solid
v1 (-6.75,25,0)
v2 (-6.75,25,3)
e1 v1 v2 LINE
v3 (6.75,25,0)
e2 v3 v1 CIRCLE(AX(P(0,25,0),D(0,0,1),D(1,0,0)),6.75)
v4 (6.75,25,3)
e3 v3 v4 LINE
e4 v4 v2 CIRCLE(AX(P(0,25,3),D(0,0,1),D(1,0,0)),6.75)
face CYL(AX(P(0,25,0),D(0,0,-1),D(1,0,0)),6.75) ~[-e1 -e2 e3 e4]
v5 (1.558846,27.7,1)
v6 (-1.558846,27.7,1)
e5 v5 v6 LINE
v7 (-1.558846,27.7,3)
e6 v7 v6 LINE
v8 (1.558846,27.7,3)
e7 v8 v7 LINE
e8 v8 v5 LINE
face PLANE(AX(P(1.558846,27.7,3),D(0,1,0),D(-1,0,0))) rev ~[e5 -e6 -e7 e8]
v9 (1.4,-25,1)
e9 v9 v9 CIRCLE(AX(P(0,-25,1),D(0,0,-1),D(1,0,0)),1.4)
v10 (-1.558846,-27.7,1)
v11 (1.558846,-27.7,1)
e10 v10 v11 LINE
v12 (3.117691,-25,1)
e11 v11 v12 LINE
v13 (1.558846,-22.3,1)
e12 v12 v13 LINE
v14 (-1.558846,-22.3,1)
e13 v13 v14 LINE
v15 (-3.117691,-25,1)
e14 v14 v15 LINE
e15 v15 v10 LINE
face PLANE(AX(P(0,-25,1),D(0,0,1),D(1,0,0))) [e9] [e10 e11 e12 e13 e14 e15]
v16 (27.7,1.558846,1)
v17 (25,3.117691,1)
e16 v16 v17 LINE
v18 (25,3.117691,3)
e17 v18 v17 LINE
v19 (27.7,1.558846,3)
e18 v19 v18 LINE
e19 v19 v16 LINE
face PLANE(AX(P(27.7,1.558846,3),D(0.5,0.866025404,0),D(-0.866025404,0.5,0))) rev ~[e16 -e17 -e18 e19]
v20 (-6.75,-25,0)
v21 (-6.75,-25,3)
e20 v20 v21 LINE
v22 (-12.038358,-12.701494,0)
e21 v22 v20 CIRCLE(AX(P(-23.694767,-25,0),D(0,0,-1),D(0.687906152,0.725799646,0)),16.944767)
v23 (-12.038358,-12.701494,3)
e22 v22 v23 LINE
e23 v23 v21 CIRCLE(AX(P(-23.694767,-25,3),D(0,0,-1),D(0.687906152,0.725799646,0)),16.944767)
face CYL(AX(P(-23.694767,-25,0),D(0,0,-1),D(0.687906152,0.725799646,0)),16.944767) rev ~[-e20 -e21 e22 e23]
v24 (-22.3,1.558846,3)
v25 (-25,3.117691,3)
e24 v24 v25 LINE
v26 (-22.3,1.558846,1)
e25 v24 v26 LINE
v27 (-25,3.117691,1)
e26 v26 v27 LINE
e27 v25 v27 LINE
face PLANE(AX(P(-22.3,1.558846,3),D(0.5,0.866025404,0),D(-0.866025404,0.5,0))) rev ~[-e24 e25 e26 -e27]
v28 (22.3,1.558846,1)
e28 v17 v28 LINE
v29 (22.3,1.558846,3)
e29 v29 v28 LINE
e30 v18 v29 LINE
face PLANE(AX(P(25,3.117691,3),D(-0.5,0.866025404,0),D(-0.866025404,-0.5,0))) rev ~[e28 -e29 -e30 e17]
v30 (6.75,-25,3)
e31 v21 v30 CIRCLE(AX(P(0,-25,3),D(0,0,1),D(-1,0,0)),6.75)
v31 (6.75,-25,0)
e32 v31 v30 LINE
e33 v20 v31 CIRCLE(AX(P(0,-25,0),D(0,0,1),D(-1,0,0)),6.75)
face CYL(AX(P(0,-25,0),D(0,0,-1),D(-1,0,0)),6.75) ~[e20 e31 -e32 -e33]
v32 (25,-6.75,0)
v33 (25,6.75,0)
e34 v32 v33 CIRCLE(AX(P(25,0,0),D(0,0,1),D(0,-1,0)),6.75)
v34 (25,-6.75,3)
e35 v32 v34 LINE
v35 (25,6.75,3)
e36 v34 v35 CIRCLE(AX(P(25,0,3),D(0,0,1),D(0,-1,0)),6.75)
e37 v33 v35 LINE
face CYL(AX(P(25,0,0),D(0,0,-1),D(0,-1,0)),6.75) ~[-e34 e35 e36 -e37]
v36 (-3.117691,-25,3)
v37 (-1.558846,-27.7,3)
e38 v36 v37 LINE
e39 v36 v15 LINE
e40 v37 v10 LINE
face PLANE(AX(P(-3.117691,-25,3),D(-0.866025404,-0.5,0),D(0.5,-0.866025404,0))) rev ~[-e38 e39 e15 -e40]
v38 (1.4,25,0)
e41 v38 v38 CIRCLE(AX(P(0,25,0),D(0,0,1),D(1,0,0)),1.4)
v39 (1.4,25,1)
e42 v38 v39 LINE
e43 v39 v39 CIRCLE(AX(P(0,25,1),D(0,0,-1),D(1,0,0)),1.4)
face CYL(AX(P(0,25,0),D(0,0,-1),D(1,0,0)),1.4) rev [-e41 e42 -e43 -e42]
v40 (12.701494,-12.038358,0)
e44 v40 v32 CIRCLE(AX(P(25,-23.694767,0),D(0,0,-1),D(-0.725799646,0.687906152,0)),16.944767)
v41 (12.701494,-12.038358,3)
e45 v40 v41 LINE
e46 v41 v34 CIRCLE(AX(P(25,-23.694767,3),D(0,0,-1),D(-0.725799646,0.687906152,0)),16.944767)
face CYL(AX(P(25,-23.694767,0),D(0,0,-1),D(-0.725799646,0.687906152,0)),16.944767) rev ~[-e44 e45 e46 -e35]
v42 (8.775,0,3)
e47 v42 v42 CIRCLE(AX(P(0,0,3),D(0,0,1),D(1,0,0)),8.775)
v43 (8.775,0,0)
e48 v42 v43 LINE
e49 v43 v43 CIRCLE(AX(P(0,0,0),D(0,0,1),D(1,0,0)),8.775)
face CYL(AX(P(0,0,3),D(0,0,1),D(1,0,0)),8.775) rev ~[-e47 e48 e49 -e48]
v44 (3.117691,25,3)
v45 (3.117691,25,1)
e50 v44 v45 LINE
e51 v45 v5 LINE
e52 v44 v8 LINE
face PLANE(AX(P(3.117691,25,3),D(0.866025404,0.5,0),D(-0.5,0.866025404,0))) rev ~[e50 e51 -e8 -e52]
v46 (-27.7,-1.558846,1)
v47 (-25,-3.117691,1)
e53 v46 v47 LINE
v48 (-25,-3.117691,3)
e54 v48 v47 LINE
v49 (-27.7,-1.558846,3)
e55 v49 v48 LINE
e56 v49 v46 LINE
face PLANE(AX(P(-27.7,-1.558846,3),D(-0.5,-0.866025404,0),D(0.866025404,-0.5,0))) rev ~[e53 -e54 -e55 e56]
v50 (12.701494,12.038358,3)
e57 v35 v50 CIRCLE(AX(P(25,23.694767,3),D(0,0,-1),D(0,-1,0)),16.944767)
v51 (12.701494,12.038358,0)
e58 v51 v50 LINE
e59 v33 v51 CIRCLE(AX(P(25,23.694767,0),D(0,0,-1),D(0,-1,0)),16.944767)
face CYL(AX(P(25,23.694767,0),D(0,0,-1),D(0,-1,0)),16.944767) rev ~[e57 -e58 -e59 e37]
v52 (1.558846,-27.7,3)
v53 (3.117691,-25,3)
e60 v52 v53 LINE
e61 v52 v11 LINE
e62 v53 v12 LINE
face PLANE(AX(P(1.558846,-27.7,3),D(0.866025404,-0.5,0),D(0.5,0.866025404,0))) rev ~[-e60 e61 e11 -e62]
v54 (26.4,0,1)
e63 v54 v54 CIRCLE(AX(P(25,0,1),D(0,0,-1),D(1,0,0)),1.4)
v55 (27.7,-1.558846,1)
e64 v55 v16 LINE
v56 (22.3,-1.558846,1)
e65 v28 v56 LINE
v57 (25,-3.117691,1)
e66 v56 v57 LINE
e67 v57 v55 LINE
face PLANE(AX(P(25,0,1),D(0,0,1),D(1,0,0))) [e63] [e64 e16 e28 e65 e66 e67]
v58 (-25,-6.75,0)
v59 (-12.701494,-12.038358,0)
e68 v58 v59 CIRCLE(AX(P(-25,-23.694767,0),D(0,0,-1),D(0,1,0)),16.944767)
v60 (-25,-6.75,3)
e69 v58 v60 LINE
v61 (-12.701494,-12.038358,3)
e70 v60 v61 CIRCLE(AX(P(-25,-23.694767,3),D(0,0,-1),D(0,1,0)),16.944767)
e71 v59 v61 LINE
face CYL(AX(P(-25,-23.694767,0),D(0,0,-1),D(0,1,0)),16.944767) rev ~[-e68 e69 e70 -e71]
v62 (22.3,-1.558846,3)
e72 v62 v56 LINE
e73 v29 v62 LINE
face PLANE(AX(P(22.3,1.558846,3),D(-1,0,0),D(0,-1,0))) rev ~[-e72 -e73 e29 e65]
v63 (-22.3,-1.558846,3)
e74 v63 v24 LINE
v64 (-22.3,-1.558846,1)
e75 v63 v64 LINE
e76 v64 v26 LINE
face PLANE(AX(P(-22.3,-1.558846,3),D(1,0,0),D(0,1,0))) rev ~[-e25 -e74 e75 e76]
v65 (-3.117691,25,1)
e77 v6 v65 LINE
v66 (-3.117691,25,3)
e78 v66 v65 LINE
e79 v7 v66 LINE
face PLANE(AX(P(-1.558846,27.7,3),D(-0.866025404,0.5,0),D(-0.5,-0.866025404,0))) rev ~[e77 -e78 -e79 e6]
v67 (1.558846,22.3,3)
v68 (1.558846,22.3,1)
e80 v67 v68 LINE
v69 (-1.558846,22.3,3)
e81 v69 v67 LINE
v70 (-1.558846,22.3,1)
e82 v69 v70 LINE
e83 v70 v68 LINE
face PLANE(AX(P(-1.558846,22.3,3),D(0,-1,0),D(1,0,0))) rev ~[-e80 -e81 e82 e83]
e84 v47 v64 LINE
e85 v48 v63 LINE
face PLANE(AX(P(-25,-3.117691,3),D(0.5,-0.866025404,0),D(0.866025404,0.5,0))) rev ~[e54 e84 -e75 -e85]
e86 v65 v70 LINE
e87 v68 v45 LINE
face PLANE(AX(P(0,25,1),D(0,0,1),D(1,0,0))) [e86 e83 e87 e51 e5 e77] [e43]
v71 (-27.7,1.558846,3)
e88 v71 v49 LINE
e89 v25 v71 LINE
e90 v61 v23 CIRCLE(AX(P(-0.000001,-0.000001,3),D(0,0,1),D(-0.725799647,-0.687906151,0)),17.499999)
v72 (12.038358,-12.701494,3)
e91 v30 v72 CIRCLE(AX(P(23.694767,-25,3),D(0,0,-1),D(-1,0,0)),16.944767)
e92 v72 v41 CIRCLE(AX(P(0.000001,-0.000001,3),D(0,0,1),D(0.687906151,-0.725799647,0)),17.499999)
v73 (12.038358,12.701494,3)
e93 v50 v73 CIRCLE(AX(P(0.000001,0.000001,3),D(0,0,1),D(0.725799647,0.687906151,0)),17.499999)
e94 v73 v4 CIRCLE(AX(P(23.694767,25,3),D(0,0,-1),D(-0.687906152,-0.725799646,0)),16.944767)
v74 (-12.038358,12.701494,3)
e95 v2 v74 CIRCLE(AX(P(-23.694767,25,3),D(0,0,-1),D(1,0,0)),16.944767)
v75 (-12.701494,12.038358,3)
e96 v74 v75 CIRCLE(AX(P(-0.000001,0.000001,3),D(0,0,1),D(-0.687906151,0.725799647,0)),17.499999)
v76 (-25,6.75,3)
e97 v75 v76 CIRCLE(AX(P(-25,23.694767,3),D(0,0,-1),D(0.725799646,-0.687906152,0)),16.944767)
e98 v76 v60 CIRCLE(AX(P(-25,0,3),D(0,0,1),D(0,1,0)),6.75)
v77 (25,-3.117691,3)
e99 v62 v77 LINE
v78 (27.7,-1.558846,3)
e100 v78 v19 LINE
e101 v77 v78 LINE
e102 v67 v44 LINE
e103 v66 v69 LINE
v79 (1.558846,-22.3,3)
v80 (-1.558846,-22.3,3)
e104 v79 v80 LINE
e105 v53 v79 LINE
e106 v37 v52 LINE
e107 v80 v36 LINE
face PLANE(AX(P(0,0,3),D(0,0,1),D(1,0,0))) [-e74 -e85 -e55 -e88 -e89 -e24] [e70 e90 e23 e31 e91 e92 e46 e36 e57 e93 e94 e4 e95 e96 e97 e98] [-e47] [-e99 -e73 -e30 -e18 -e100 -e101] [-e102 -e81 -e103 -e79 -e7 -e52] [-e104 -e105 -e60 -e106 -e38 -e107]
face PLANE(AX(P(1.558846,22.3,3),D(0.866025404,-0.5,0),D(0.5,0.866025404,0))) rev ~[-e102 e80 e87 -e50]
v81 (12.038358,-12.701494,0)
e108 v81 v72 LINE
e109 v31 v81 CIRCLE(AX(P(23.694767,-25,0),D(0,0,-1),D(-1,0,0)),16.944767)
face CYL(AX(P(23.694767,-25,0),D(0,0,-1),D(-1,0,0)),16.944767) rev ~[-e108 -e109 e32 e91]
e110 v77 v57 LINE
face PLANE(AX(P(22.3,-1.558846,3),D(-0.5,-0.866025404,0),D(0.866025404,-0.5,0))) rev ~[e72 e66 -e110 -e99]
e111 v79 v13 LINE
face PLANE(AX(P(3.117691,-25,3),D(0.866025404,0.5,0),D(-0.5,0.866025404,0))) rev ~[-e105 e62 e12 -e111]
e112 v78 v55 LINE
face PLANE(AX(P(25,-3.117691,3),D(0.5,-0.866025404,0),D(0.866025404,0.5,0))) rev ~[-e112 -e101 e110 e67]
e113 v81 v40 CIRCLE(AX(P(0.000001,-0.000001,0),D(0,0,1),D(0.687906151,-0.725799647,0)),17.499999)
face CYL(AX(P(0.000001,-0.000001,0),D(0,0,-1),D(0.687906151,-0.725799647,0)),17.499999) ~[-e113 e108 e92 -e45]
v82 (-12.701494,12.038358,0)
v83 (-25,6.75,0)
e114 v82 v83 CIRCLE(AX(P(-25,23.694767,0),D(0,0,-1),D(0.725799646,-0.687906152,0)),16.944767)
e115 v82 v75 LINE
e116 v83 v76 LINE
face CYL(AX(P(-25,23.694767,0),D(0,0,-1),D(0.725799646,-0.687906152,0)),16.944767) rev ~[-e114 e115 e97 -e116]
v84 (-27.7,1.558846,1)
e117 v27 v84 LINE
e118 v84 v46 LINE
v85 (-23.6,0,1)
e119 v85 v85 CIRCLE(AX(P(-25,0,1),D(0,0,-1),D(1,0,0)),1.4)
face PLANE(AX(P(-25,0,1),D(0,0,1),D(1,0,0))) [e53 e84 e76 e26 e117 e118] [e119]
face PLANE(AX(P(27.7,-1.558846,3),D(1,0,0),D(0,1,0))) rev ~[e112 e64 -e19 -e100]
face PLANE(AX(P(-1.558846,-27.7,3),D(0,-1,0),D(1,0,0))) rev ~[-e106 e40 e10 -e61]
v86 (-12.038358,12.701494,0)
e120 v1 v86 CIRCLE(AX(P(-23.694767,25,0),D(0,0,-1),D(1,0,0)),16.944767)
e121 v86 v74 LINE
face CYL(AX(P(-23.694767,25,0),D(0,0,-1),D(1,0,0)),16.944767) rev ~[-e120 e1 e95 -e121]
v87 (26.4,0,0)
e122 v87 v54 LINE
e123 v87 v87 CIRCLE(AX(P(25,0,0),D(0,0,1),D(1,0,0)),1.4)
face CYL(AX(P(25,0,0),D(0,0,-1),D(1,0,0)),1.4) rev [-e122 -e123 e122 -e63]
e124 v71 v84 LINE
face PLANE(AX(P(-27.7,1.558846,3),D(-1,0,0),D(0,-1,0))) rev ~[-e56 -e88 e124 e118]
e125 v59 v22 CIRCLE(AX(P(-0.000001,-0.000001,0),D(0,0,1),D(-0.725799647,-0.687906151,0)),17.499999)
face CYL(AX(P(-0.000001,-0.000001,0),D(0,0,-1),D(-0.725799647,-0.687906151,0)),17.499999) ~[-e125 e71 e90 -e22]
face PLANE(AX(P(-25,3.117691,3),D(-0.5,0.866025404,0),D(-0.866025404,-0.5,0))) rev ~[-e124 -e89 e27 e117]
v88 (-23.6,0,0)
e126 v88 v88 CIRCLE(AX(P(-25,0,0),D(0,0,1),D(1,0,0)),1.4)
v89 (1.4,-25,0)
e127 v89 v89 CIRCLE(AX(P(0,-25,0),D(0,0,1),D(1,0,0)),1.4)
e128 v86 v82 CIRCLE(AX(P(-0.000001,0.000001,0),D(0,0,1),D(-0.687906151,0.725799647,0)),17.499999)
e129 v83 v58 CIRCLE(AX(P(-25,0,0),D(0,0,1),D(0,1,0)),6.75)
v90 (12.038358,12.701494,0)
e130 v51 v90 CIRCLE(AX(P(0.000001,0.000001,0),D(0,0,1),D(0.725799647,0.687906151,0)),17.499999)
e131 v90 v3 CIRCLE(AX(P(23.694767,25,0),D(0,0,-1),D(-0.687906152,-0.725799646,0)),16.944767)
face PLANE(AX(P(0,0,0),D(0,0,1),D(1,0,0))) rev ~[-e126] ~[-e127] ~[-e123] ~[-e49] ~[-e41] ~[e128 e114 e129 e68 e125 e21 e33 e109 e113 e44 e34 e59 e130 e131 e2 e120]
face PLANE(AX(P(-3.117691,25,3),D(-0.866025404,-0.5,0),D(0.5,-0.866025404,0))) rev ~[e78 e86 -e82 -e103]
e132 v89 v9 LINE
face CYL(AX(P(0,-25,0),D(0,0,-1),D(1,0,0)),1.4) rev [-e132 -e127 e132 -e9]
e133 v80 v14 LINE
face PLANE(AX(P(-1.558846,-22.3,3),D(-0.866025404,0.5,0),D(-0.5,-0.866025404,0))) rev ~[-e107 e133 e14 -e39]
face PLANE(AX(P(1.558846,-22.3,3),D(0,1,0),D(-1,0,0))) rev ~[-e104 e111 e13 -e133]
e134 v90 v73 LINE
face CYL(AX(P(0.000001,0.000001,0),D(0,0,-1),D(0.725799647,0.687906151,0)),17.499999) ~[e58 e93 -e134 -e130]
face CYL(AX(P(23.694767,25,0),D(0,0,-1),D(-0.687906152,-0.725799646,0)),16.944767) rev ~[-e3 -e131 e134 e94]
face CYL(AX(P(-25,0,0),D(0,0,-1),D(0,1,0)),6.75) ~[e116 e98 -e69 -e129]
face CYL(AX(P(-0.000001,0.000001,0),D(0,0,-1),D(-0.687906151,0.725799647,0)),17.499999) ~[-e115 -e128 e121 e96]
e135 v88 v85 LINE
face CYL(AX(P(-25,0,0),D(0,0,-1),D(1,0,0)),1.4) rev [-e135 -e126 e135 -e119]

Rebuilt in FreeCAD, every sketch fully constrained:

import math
import FreeCAD as App
import Part
import Sketcher
Q = App.Units.Quantity


def add_polygon(sketch, points):
    """Adds a closed chain of lines whose ends are joined by coincident constraints."""
    first, n = sketch.GeometryCount, len(points)
    for a, b in zip(points, points[1:] + points[:1]):
        sketch.addGeometry(Part.LineSegment(App.Vector(*a, 0), App.Vector(*b, 0)), False)
    for i in range(n):
        sketch.addConstraint(Sketcher.Constraint("Coincident", first + i, 2, first + (i + 1) % n, 1))

doc = App.newDocument("Part")
params = doc.addObject("Spreadsheet::Sheet", "Params")
for row, (alias, value) in enumerate([
    ("sketch1_diameter", "2.8 mm"),
    ("sketch1_radius", "17.499999 mm"),
    ("sketch1_radius2", "6.75 mm"),
    ("pad1_length", "3 mm"),
    ("pocket1_length", "2 mm"),
    ("sketch3_diameter", "17.55 mm"),
], start=1):
    params.set(f"A{row}", alias)
    params.set(f"B{row}", "=" + value)
    params.setAlias(f"B{row}", alias)

body = doc.addObject("PartDesign::Body", "Body")

sketch1 = body.newObject("Sketcher::SketchObject", "Sketch")
sketch1.AttachmentSupport = (doc.getObject("XY_Plane"), [""])
sketch1.MapMode = "FlatFace"
sketch1.addGeometry(Part.ArcOfCircle(Part.Circle(App.Vector(0, 25, 0), App.Vector(0, 0, 1), 6.8), math.radians(0), math.radians(180)), False)
sketch1.addGeometry(Part.ArcOfCircle(Part.Circle(App.Vector(-23.7, 25, 0), App.Vector(0, 0, 1), 16.9), math.radians(-47), math.radians(0)), False)
sketch1.addGeometry(Part.ArcOfCircle(Part.Circle(App.Vector(0, 0, 0), App.Vector(0, 0, 1), 17.5), math.radians(133.46), math.radians(136.54)), False)
sketch1.addGeometry(Part.ArcOfCircle(Part.Circle(App.Vector(-25, 23.7, 0), App.Vector(0, 0, 1), 16.9), math.radians(-90), math.radians(-43)), False)
sketch1.addGeometry(Part.ArcOfCircle(Part.Circle(App.Vector(-25, 0, 0), App.Vector(0, 0, 1), 6.8), math.radians(90), math.radians(270)), False)
sketch1.addGeometry(Part.ArcOfCircle(Part.Circle(App.Vector(-25, -23.7, 0), App.Vector(0, 0, 1), 16.9), math.radians(43), math.radians(90)), False)
sketch1.addGeometry(Part.ArcOfCircle(Part.Circle(App.Vector(0, 0, 0), App.Vector(0, 0, 1), 17.5), math.radians(-136.54), math.radians(-133.46)), False)
sketch1.addGeometry(Part.ArcOfCircle(Part.Circle(App.Vector(-23.7, -25, 0), App.Vector(0, 0, 1), 16.9), math.radians(0), math.radians(47)), False)
sketch1.addGeometry(Part.ArcOfCircle(Part.Circle(App.Vector(0, -25, 0), App.Vector(0, 0, 1), 6.8), math.radians(180), math.radians(360)), False)
sketch1.addGeometry(Part.ArcOfCircle(Part.Circle(App.Vector(23.7, -25, 0), App.Vector(0, 0, 1), 16.9), math.radians(133), math.radians(180)), False)
sketch1.addGeometry(Part.ArcOfCircle(Part.Circle(App.Vector(0, 0, 0), App.Vector(0, 0, 1), 17.5), math.radians(-46.54), math.radians(-43.46)), False)
sketch1.addGeometry(Part.ArcOfCircle(Part.Circle(App.Vector(25, -23.7, 0), App.Vector(0, 0, 1), 16.9), math.radians(90), math.radians(137)), False)
sketch1.addGeometry(Part.ArcOfCircle(Part.Circle(App.Vector(25, 0, 0), App.Vector(0, 0, 1), 6.8), math.radians(-90), math.radians(90)), False)
sketch1.addGeometry(Part.ArcOfCircle(Part.Circle(App.Vector(25, 23.7, 0), App.Vector(0, 0, 1), 16.9), math.radians(-137), math.radians(-90)), False)
sketch1.addGeometry(Part.ArcOfCircle(Part.Circle(App.Vector(0, 0, 0), App.Vector(0, 0, 1), 17.5), math.radians(43.46), math.radians(46.54)), False)
sketch1.addGeometry(Part.ArcOfCircle(Part.Circle(App.Vector(23.7, 25, 0), App.Vector(0, 0, 1), 16.9), math.radians(180), math.radians(227)), False)
sketch1.addGeometry(Part.Circle(App.Vector(0, -25, 0), App.Vector(0, 0, 1), 1.4), False)
sketch1.addGeometry(Part.Circle(App.Vector(-25, 0, 0), App.Vector(0, 0, 1), 1.4), False)
sketch1.addGeometry(Part.Circle(App.Vector(25, 0, 0), App.Vector(0, 0, 1), 1.4), False)
sketch1.addGeometry(Part.Circle(App.Vector(0, 25, 0), App.Vector(0, 0, 1), 1.4), False)
sketch1.addConstraint(Sketcher.Constraint("Tangent", 0, 2, 1, 2))
sketch1.addConstraint(Sketcher.Constraint("Tangent", 1, 1, 2, 1))
sketch1.addConstraint(Sketcher.Constraint("Tangent", 2, 2, 3, 2))
sketch1.addConstraint(Sketcher.Constraint("Tangent", 3, 1, 4, 1))
sketch1.addConstraint(Sketcher.Constraint("Tangent", 4, 2, 5, 2))
sketch1.addConstraint(Sketcher.Constraint("Tangent", 5, 1, 6, 1))
sketch1.addConstraint(Sketcher.Constraint("Tangent", 6, 2, 7, 2))
sketch1.addConstraint(Sketcher.Constraint("Tangent", 7, 1, 8, 1))
sketch1.addConstraint(Sketcher.Constraint("Tangent", 8, 2, 9, 2))
sketch1.addConstraint(Sketcher.Constraint("Tangent", 9, 1, 10, 1))
sketch1.addConstraint(Sketcher.Constraint("Tangent", 10, 2, 11, 2))
sketch1.addConstraint(Sketcher.Constraint("Tangent", 11, 1, 12, 1))
sketch1.addConstraint(Sketcher.Constraint("Tangent", 12, 2, 13, 2))
sketch1.addConstraint(Sketcher.Constraint("Tangent", 13, 1, 14, 1))
sketch1.addConstraint(Sketcher.Constraint("Tangent", 14, 2, 15, 2))
sketch1.addConstraint(Sketcher.Constraint("Tangent", 15, 1, 0, 1))
sketch1.addConstraint(Sketcher.Constraint("Coincident", 2, 3, -1, 1))
sketch1.addConstraint(Sketcher.Constraint("Coincident", 6, 3, -1, 1))
sketch1.addConstraint(Sketcher.Constraint("Coincident", 10, 3, -1, 1))
sketch1.addConstraint(Sketcher.Constraint("Coincident", 14, 3, -1, 1))
sketch1.addConstraint(Sketcher.Constraint("Coincident", 16, 3, 8, 3))
sketch1.addConstraint(Sketcher.Constraint("Coincident", 17, 3, 4, 3))
sketch1.addConstraint(Sketcher.Constraint("Coincident", 18, 3, 12, 3))
sketch1.addConstraint(Sketcher.Constraint("Coincident", 19, 3, 0, 3))
sketch1.addConstraint(Sketcher.Constraint("Equal", 1, 3))
sketch1.addConstraint(Sketcher.Constraint("Equal", 0, 4))
sketch1.addConstraint(Sketcher.Constraint("Equal", 3, 5))
sketch1.addConstraint(Sketcher.Constraint("Equal", 2, 6))
sketch1.addConstraint(Sketcher.Constraint("Equal", 5, 7))
sketch1.addConstraint(Sketcher.Constraint("Equal", 4, 8))
sketch1.addConstraint(Sketcher.Constraint("Equal", 7, 9))
sketch1.addConstraint(Sketcher.Constraint("Equal", 6, 10))
sketch1.addConstraint(Sketcher.Constraint("Equal", 9, 11))
sketch1.addConstraint(Sketcher.Constraint("Equal", 8, 12))
sketch1.addConstraint(Sketcher.Constraint("Equal", 11, 13))
sketch1.addConstraint(Sketcher.Constraint("Equal", 10, 14))
sketch1.addConstraint(Sketcher.Constraint("Equal", 13, 15))
sketch1.addConstraint(Sketcher.Constraint("Equal", 16, 17))
sketch1.addConstraint(Sketcher.Constraint("Equal", 17, 18))
sketch1.addConstraint(Sketcher.Constraint("Equal", 18, 19))
sketch1.addConstraint(Sketcher.Constraint("Symmetric", 0, 3, 8, 3, -1, 1))
sketch1.addConstraint(Sketcher.Constraint("Symmetric", 4, 3, 12, 3, -1, 1))
sketch1.addConstraint(Sketcher.Constraint("PointOnObject", 0, 3, -2))
sketch1.addConstraint(Sketcher.Constraint("PointOnObject", 4, 3, -1))
sketch1.addConstraint(Sketcher.Constraint("Horizontal", 0, 3, 1, 3))
sketch1.addConstraint(Sketcher.Constraint("Vertical", 3, 3, 4, 3))
sketch1.addConstraint(Sketcher.Constraint("Diameter", 16, Q("2.8 mm")))
sketch1.addConstraint(Sketcher.Constraint("Radius", 2, Q("17.499999 mm")))
sketch1.addConstraint(Sketcher.Constraint("Radius", 0, Q("6.75 mm")))
sketch1.addConstraint(Sketcher.Constraint("DistanceY", -1, 1, 0, 3, Q("25 mm")))
sketch1.setExpression("Constraints[46]", "Params.sketch1_diameter")
sketch1.setExpression("Constraints[47]", "Params.sketch1_radius")
sketch1.setExpression("Constraints[48]", "Params.sketch1_radius2")
pad1 = body.newObject("PartDesign::Pad", "Pad")
pad1.Profile = sketch1
pad1.setExpression("Length", "Params.pad1_length")

sketch2 = body.newObject("Sketcher::SketchObject", "Sketch001")
sketch2.AttachmentSupport = (doc.getObject("XY_Plane"), [""])
sketch2.MapMode = "FlatFace"
sketch2.AttachmentOffset = App.Placement(App.Vector(0, 0, 3), App.Rotation())
add_polygon(sketch2, [(3.1, 25), (1.6, 27.7), (-1.6, 27.7), (-3.1, 25), (-1.6, 22.3), (1.6, 22.3)])
add_polygon(sketch2, [(25, 3.1), (22.3, 1.6), (22.3, -1.6), (25, -3.1), (27.7, -1.6), (27.7, 1.6)])
add_polygon(sketch2, [(3.1, -25), (1.6, -22.3), (-1.6, -22.3), (-3.1, -25), (-1.6, -27.7), (1.6, -27.7)])
add_polygon(sketch2, [(-25, -3.1), (-22.3, -1.6), (-22.3, 1.6), (-25, 3.1), (-27.7, 1.6), (-27.7, -1.6)])
sketch2.addConstraint(Sketcher.Constraint("Horizontal", 1))
sketch2.addConstraint(Sketcher.Constraint("Horizontal", 4))
sketch2.addConstraint(Sketcher.Constraint("Vertical", 7))
sketch2.addConstraint(Sketcher.Constraint("Vertical", 10))
sketch2.addConstraint(Sketcher.Constraint("Horizontal", 13))
sketch2.addConstraint(Sketcher.Constraint("Horizontal", 16))
sketch2.addConstraint(Sketcher.Constraint("Vertical", 19))
sketch2.addConstraint(Sketcher.Constraint("Vertical", 22))
sketch2.addConstraint(Sketcher.Constraint("Symmetric", 3, 2, 12, 2, -1, 1))
sketch2.addConstraint(Sketcher.Constraint("Symmetric", 5, 2, 14, 2, -1, 1))
sketch2.addConstraint(Sketcher.Constraint("Symmetric", 0, 2, 15, 2, -1, 1))
sketch2.addConstraint(Sketcher.Constraint("Symmetric", 2, 2, 17, 2, -1, 1))
sketch2.addConstraint(Sketcher.Constraint("Symmetric", 6, 2, 18, 2, -1, 1))
sketch2.addConstraint(Sketcher.Constraint("Symmetric", 8, 2, 20, 2, -1, 1))
sketch2.addConstraint(Sketcher.Constraint("Symmetric", 9, 2, 21, 2, -1, 1))
sketch2.addConstraint(Sketcher.Constraint("Symmetric", 11, 2, 23, 2, -1, 1))
sketch2.addConstraint(Sketcher.Constraint("Symmetric", 2, 2, 5, 2, -2))
sketch2.addConstraint(Sketcher.Constraint("Symmetric", 11, 2, 20, 2, -2))
sketch2.addConstraint(Sketcher.Constraint("Parallel", 0, 3))
sketch2.addConstraint(Sketcher.Constraint("Parallel", 2, 5))
sketch2.addConstraint(Sketcher.Constraint("Perpendicular", 3, 6))
sketch2.addConstraint(Sketcher.Constraint("Perpendicular", 5, 8))
sketch2.addConstraint(Sketcher.Constraint("Parallel", 6, 9))
sketch2.addConstraint(Sketcher.Constraint("Parallel", 8, 11))
sketch2.addConstraint(Sketcher.Constraint("Perpendicular", 11, 14))
sketch2.addConstraint(Sketcher.Constraint("Parallel", 14, 17))
sketch2.addConstraint(Sketcher.Constraint("Perpendicular", 17, 20))
sketch2.addConstraint(Sketcher.Constraint("Parallel", 20, 23))
sketch2.addConstraint(Sketcher.Constraint("Horizontal", 7, 2, 9, 2))
sketch2.addConstraint(Sketcher.Constraint("Horizontal", 6, 2, 10, 2))
sketch2.addConstraint(Sketcher.Constraint("Vertical", 1, 2, 3, 2))
sketch2.addConstraint(Sketcher.Constraint("Equal", 16, 7))
sketch2.addConstraint(Sketcher.Constraint("Equal", 5, 6))
sketch2.addConstraint(Sketcher.Constraint("Angle", 0, Q("120 deg")))
sketch2.addConstraint(Sketcher.Constraint("DistanceY", -1, 1, 2, 2, Q("25 mm")))
sketch2.addConstraint(Sketcher.Constraint("DistanceX", -1, 1, 8, 2, Q("25 mm")))
sketch2.addConstraint(Sketcher.Constraint("DistanceY", -1, 1, 0, 2, Q("27.7 mm")))
sketch2.addConstraint(Sketcher.Constraint("DistanceX", 1, 2, 1, 1, Q("3.117691 mm")))
pocket1 = body.newObject("PartDesign::Pocket", "Pocket")
pocket1.Profile = sketch2
pocket1.setExpression("Length", "Params.pocket1_length")

sketch3 = body.newObject("Sketcher::SketchObject", "Sketch002")
sketch3.AttachmentSupport = (doc.getObject("XY_Plane"), [""])
sketch3.MapMode = "FlatFace"
sketch3.AttachmentOffset = App.Placement(App.Vector(0, 0, 3), App.Rotation())
sketch3.addGeometry(Part.Circle(App.Vector(0, 0, 0), App.Vector(0, 0, 1), 9), False)
sketch3.addConstraint(Sketcher.Constraint("Coincident", 0, 3, -1, 1))
sketch3.addConstraint(Sketcher.Constraint("Diameter", 0, Q("17.55 mm")))
sketch3.setExpression("Constraints[1]", "Params.sketch3_diameter")
pocket2 = body.newObject("PartDesign::Pocket", "Pocket001")
pocket2.Profile = sketch3
pocket2.Type = "UpToFirst"

doc.recompute()
